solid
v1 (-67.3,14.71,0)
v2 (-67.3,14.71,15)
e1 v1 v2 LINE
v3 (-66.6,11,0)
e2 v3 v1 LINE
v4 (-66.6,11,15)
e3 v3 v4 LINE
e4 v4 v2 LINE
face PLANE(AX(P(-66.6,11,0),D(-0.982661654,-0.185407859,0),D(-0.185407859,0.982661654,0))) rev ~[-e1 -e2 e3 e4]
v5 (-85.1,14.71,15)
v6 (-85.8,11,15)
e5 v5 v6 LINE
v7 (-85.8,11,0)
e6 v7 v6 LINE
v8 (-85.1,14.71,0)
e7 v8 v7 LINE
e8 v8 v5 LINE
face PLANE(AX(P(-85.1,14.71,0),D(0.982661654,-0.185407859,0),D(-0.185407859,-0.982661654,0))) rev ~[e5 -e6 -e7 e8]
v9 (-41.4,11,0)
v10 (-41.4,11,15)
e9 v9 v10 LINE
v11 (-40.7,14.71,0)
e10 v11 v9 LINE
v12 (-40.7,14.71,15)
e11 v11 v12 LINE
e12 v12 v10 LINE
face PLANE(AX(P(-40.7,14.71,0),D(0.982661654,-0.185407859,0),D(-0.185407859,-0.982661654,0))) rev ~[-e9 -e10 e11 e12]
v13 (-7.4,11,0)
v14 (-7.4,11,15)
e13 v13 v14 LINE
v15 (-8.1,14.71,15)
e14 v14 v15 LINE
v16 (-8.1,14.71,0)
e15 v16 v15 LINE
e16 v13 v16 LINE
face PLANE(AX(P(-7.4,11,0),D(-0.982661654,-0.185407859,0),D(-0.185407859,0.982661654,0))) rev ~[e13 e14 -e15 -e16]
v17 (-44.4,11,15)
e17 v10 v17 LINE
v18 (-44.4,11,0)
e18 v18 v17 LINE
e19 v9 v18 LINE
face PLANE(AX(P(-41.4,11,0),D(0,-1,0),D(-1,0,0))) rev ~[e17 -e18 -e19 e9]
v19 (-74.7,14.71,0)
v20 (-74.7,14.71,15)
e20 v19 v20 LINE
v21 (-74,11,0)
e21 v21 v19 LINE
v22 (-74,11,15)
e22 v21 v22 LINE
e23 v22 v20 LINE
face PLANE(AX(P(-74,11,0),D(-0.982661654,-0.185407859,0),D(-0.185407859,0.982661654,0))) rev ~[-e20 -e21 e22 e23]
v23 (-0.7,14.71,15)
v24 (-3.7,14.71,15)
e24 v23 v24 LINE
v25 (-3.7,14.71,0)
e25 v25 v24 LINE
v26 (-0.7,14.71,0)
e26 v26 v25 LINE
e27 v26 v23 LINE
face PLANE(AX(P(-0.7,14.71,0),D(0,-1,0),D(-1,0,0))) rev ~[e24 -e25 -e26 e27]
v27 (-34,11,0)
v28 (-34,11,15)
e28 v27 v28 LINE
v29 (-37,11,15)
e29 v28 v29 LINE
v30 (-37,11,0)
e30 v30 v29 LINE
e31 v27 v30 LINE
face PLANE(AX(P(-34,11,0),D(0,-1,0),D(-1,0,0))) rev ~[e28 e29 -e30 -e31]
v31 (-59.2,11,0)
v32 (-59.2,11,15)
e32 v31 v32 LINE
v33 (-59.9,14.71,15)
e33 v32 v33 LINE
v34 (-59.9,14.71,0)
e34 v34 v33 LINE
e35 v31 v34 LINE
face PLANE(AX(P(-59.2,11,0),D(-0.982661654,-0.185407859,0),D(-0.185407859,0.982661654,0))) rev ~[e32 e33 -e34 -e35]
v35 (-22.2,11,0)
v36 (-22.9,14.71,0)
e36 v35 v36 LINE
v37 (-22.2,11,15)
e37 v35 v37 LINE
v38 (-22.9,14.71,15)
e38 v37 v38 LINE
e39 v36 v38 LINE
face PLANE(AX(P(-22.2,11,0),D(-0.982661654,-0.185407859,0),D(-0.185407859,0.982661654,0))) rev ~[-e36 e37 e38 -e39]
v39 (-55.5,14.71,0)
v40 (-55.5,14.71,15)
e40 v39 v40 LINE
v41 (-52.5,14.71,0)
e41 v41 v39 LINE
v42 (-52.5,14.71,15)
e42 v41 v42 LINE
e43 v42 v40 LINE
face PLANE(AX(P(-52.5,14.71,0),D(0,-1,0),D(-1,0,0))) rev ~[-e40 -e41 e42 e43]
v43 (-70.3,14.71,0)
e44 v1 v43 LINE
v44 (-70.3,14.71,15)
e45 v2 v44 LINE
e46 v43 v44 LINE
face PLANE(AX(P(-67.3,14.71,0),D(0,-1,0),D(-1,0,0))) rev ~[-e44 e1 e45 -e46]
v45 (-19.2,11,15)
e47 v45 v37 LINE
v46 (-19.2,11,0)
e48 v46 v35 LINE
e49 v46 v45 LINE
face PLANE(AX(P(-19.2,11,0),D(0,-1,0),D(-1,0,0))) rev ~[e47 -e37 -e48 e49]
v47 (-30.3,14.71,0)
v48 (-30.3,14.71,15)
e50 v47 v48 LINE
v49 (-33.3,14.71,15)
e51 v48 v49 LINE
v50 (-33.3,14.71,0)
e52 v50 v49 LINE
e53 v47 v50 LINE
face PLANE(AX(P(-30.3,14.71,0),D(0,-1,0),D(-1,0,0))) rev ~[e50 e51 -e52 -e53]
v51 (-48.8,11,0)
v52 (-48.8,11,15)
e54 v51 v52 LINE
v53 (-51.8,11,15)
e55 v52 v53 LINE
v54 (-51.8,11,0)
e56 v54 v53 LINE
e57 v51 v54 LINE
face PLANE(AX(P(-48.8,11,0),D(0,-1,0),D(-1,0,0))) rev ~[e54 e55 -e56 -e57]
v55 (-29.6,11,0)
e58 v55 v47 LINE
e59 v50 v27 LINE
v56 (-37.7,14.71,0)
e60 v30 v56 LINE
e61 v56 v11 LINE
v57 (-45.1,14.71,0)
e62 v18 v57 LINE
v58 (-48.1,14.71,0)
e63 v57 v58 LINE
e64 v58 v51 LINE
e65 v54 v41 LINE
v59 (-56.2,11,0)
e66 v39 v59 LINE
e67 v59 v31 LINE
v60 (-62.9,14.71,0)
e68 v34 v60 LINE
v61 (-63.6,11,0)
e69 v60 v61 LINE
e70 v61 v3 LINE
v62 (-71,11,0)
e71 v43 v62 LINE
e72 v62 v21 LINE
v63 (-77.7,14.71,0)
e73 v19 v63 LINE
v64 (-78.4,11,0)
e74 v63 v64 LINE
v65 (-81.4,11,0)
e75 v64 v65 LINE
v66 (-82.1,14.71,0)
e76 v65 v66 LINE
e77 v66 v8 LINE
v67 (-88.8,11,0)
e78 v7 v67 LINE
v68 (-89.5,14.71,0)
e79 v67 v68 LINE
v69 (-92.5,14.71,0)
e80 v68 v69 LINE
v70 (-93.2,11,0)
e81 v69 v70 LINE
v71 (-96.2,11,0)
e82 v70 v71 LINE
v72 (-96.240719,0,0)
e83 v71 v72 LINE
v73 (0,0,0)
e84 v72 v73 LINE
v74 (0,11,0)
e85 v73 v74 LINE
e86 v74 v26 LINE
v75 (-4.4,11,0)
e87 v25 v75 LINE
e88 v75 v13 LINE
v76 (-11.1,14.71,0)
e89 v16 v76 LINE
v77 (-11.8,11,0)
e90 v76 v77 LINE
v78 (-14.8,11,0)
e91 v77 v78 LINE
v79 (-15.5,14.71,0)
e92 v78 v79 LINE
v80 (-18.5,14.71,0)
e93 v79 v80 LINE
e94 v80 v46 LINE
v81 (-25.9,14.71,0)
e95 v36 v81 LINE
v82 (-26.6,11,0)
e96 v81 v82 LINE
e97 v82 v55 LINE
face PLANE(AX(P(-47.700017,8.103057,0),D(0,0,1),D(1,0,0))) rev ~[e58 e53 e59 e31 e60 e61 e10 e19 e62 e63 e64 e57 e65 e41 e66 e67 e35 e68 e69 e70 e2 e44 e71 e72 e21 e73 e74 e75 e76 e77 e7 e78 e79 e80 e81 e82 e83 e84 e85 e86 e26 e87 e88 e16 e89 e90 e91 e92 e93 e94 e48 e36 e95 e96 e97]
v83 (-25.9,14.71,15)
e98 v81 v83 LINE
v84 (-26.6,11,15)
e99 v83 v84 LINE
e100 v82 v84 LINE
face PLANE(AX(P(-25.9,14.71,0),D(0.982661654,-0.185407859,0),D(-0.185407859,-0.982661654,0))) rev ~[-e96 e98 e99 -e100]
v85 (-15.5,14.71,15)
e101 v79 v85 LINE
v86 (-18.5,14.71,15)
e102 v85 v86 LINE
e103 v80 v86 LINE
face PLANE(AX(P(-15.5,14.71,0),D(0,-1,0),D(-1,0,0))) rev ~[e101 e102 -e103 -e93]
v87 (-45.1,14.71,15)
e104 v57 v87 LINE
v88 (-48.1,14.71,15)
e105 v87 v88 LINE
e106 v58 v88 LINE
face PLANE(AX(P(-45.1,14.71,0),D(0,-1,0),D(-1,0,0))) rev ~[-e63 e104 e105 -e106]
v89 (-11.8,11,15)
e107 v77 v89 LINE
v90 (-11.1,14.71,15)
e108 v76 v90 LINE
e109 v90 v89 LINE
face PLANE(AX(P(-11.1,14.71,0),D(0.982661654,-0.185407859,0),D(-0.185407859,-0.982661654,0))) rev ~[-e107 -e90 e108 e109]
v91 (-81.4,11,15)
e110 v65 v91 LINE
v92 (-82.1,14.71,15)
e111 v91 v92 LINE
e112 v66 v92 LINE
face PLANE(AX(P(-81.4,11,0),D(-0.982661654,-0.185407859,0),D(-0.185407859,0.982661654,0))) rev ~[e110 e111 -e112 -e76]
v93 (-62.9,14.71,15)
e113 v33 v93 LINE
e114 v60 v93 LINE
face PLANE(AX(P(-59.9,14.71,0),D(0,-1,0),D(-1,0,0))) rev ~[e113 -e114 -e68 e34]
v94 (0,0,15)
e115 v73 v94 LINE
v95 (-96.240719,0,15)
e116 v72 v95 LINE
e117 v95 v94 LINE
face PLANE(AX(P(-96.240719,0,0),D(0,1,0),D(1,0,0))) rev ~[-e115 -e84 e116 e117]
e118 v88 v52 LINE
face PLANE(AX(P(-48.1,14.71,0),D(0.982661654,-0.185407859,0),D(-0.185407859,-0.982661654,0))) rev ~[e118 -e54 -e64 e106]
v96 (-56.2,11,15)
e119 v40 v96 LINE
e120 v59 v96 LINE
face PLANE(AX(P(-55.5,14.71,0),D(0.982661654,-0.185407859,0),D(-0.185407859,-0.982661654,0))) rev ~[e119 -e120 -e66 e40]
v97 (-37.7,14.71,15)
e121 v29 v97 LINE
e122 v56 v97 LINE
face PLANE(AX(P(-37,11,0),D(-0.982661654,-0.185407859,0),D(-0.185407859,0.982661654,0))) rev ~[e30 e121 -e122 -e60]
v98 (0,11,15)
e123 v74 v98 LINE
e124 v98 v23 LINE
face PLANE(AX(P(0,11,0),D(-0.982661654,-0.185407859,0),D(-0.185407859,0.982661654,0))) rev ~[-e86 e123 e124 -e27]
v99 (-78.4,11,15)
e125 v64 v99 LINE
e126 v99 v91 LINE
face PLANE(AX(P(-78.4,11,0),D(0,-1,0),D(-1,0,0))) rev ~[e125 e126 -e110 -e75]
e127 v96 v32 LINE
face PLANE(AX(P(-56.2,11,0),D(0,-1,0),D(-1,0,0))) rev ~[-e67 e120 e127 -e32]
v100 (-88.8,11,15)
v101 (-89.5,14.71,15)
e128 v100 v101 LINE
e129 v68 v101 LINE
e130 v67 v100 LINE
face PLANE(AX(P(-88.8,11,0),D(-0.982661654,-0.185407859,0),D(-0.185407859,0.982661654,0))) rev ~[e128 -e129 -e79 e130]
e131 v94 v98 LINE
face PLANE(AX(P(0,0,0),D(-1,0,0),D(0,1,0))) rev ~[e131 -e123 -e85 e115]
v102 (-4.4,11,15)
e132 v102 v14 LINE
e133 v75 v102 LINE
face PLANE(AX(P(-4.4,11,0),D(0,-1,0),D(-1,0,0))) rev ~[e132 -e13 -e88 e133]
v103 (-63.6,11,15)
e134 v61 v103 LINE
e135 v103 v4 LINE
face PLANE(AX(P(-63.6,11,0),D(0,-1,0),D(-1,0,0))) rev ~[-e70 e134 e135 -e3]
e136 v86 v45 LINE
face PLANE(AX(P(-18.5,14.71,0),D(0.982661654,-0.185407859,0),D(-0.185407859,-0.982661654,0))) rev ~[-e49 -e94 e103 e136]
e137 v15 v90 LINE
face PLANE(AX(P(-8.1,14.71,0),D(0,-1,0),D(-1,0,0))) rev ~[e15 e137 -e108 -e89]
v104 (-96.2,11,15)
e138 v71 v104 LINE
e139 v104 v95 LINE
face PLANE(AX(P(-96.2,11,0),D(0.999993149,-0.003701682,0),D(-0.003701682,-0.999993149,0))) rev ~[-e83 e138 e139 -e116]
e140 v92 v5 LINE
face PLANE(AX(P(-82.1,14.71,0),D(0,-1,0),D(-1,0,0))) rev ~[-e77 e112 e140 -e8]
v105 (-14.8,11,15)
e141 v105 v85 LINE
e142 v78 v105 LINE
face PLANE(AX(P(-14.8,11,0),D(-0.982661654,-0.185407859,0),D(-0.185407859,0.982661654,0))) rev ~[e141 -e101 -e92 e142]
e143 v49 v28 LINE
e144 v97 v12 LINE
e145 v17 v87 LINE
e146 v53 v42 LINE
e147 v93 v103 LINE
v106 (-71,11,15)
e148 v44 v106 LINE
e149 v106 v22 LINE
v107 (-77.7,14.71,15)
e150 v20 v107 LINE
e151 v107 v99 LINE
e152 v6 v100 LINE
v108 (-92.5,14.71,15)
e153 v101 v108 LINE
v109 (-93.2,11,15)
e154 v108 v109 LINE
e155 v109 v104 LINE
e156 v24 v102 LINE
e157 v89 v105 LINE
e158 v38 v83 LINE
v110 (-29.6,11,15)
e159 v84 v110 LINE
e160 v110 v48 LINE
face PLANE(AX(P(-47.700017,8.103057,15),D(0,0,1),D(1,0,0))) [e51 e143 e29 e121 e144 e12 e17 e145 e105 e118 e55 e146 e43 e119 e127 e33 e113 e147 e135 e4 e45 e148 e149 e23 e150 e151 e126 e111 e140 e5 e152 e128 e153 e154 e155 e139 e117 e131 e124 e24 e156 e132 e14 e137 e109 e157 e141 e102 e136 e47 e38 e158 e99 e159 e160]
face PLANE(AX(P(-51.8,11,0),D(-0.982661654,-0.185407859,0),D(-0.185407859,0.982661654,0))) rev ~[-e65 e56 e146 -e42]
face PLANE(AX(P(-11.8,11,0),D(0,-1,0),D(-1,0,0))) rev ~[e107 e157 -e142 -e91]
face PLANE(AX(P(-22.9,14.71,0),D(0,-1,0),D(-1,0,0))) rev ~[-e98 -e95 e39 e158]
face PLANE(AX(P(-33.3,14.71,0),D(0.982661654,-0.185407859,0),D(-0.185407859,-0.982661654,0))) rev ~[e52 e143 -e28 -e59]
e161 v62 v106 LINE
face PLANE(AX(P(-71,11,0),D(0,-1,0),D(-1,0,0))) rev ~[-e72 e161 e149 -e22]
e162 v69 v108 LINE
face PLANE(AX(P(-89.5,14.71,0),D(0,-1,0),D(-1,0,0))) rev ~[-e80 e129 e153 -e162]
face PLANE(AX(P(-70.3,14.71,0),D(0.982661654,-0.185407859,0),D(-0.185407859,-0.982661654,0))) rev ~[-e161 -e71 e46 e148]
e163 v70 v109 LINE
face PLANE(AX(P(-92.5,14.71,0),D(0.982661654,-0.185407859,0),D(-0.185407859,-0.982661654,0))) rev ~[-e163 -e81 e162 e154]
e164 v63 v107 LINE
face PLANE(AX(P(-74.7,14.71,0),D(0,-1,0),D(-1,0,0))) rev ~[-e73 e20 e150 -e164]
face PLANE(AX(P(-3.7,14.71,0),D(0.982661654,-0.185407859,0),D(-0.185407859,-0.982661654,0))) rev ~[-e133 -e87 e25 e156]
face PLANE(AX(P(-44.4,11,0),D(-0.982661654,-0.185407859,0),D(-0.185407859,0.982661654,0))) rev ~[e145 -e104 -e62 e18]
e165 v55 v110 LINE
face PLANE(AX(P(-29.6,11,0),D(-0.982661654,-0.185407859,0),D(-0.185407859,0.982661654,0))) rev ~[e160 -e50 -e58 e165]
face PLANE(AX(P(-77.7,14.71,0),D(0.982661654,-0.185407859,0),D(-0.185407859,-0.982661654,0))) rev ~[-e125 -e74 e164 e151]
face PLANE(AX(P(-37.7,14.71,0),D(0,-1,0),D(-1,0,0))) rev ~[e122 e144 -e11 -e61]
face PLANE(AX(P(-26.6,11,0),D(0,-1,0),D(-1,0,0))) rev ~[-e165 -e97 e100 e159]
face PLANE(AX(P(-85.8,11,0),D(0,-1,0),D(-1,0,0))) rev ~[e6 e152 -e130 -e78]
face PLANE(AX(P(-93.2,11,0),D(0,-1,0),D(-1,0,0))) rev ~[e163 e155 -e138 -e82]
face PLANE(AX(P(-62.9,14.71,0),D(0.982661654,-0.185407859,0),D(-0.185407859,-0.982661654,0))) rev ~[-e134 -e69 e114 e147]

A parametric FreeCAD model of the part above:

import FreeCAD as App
import Part
import Sketcher


def add_polygon(sketch, points):
    """Adds a closed chain of lines whose ends are joined by coincident constraints."""
    first, n = sketch.GeometryCount, len(points)
    for a, b in zip(points, points[1:] + points[:1]):
        sketch.addGeometry(Part.LineSegment(App.Vector(*a, 0), App.Vector(*b, 0)), False)
    for i in range(n):
        sketch.addConstraint(Sketcher.Constraint("Coincident", first + i, 2, first + (i + 1) % n, 1))

doc = App.newDocument("Part")
body = doc.addObject("PartDesign::Body", "Body")

sketch1 = body.newObject("Sketcher::SketchObject", "Sketch")
sketch1.AttachmentSupport = (doc.getObject("XY_Plane"), [""])
sketch1.MapMode = "FlatFace"
add_polygon(sketch1, [(0, 0), (0, 11), (-0.7, 14.7), (-3.7, 14.7), (-4.4, 11), (-7.4, 11), (-8.1, 14.7), (-11.1, 14.7), (-11.8, 11), (-14.8, 11), (-15.5, 14.7), (-18.5, 14.7), (-19.2, 11), (-22.2, 11), (-22.9, 14.7), (-25.9, 14.7), (-26.6, 11), (-29.6, 11), (-30.3, 14.7), (-33.3, 14.7), (-34, 11), (-37, 11), (-37.7, 14.7), (-40.7, 14.7), (-41.4, 11), (-44.4, 11), (-45.1, 14.7), (-48.1, 14.7), (-48.8, 11), (-51.8, 11), (-52.5, 14.7), (-55.5, 14.7), (-56.2, 11), (-59.2, 11), (-59.9, 14.7), (-62.9, 14.7), (-63.6, 11), (-66.6, 11), (-67.3, 14.7), (-70.3, 14.7), (-71, 11), (-74, 11), (-74.7, 14.7), (-77.7, 14.7), (-78.4, 11), (-81.4, 11), (-82.1, 14.7), (-85.1, 14.7), (-85.8, 11), (-88.8, 11), (-89.5, 14.7), (-92.5, 14.7), (-93.2, 11), (-96.2, 11), (-96.2, 0)])
sketch1.addConstraint(Sketcher.Constraint("Vertical", 0))
sketch1.addConstraint(Sketcher.Constraint("Horizontal", 2))
sketch1.addConstraint(Sketcher.Constraint("Horizontal", 4))
sketch1.addConstraint(Sketcher.Constraint("Horizontal", 6))
sketch1.addConstraint(Sketcher.Constraint("Horizontal", 8))
sketch1.addConstraint(Sketcher.Constraint("Horizontal", 10))
sketch1.addConstraint(Sketcher.Constraint("Horizontal", 12))
sketch1.addConstraint(Sketcher.Constraint("Horizontal", 14))
sketch1.addConstraint(Sketcher.Constraint("Horizontal", 16))
sketch1.addConstraint(Sketcher.Constraint("Horizontal", 18))
sketch1.addConstraint(Sketcher.Constraint("Horizontal", 20))
sketch1.addConstraint(Sketcher.Constraint("Horizontal", 22))
sketch1.addConstraint(Sketcher.Constraint("Horizontal", 24))
sketch1.addConstraint(Sketcher.Constraint("Horizontal", 26))
sketch1.addConstraint(Sketcher.Constraint("Horizontal", 28))
sketch1.addConstraint(Sketcher.Constraint("Horizontal", 30))
sketch1.addConstraint(Sketcher.Constraint("Horizontal", 32))
sketch1.addConstraint(Sketcher.Constraint("Horizontal", 34))
sketch1.addConstraint(Sketcher.Constraint("Horizontal", 36))
sketch1.addConstraint(Sketcher.Constraint("Horizontal", 38))
sketch1.addConstraint(Sketcher.Constraint("Horizontal", 40))
sketch1.addConstraint(Sketcher.Constraint("Horizontal", 42))
sketch1.addConstraint(Sketcher.Constraint("Horizontal", 44))
sketch1.addConstraint(Sketcher.Constraint("Horizontal", 46))
sketch1.addConstraint(Sketcher.Constraint("Horizontal", 48))
sketch1.addConstraint(Sketcher.Constraint("Horizontal", 50))
sketch1.addConstraint(Sketcher.Constraint("Horizontal", 52))
sketch1.addConstraint(Sketcher.Constraint("Horizontal", 54))
sketch1.addConstraint(Sketcher.Constraint("Coincident", 54, 2, -1, 1))
sketch1.addConstraint(Sketcher.Constraint("Parallel", 1, 5))
sketch1.addConstraint(Sketcher.Constraint("Parallel", 3, 7))
sketch1.addConstraint(Sketcher.Constraint("Parallel", 5, 9))
sketch1.addConstraint(Sketcher.Constraint("Parallel", 7, 11))
sketch1.addConstraint(Sketcher.Constraint("Parallel", 9, 13))
sketch1.addConstraint(Sketcher.Constraint("Parallel", 11, 15))
sketch1.addConstraint(Sketcher.Constraint("Parallel", 13, 17))
sketch1.addConstraint(Sketcher.Constraint("Parallel", 15, 19))
sketch1.addConstraint(Sketcher.Constraint("Parallel", 17, 21))
sketch1.addConstraint(Sketcher.Constraint("Parallel", 19, 23))
sketch1.addConstraint(Sketcher.Constraint("Parallel", 21, 25))
sketch1.addConstraint(Sketcher.Constraint("Parallel", 23, 27))
sketch1.addConstraint(Sketcher.Constraint("Parallel", 25, 29))
sketch1.addConstraint(Sketcher.Constraint("Parallel", 27, 31))
sketch1.addConstraint(Sketcher.Constraint("Parallel", 29, 33))
sketch1.addConstraint(Sketcher.Constraint("Parallel", 31, 35))
sketch1.addConstraint(Sketcher.Constraint("Parallel", 33, 37))
sketch1.addConstraint(Sketcher.Constraint("Parallel", 35, 39))
sketch1.addConstraint(Sketcher.Constraint("Parallel", 37, 41))
sketch1.addConstraint(Sketcher.Constraint("Parallel", 39, 43))
sketch1.addConstraint(Sketcher.Constraint("Parallel", 41, 45))
sketch1.addConstraint(Sketcher.Constraint("Parallel", 43, 47))
sketch1.addConstraint(Sketcher.Constraint("Parallel", 45, 49))
sketch1.addConstraint(Sketcher.Constraint("Parallel", 47, 51))
sketch1.addConstraint(Sketcher.Constraint("Horizontal", 0, 2, 3, 2))
sketch1.addConstraint(Sketcher.Constraint("Horizontal", 2, 2, 5, 2))
sketch1.addConstraint(Sketcher.Constraint("Horizontal", 4, 2, 7, 2))
sketch1.addConstraint(Sketcher.Constraint("Horizontal", 6, 2, 9, 2))
sketch1.addConstraint(Sketcher.Constraint("Horizontal", 8, 2, 11, 2))
sketch1.addConstraint(Sketcher.Constraint("Horizontal", 10, 2, 13, 2))
sketch1.addConstraint(Sketcher.Constraint("Horizontal", 12, 2, 15, 2))
sketch1.addConstraint(Sketcher.Constraint("Horizontal", 14, 2, 17, 2))
sketch1.addConstraint(Sketcher.Constraint("Horizontal", 16, 2, 19, 2))
sketch1.addConstraint(Sketcher.Constraint("Horizontal", 18, 2, 21, 2))
sketch1.addConstraint(Sketcher.Constraint("Horizontal", 20, 2, 23, 2))
sketch1.addConstraint(Sketcher.Constraint("Horizontal", 22, 2, 25, 2))
sketch1.addConstraint(Sketcher.Constraint("Horizontal", 24, 2, 27, 2))
sketch1.addConstraint(Sketcher.Constraint("Horizontal", 26, 2, 29, 2))
sketch1.addConstraint(Sketcher.Constraint("Horizontal", 28, 2, 31, 2))
sketch1.addConstraint(Sketcher.Constraint("Horizontal", 30, 2, 33, 2))
sketch1.addConstraint(Sketcher.Constraint("Horizontal", 32, 2, 35, 2))
sketch1.addConstraint(Sketcher.Constraint("Horizontal", 34, 2, 37, 2))
sketch1.addConstraint(Sketcher.Constraint("Horizontal", 36, 2, 39, 2))
sketch1.addConstraint(Sketcher.Constraint("Horizontal", 38, 2, 41, 2))
sketch1.addConstraint(Sketcher.Constraint("Horizontal", 40, 2, 43, 2))
sketch1.addConstraint(Sketcher.Constraint("Horizontal", 42, 2, 45, 2))
sketch1.addConstraint(Sketcher.Constraint("Horizontal", 44, 2, 47, 2))
sketch1.addConstraint(Sketcher.Constraint("Horizontal", 46, 2, 49, 2))
sketch1.addConstraint(Sketcher.Constraint("Horizontal", 48, 2, 51, 2))
sketch1.addConstraint(Sketcher.Constraint("Equal", 2, 4))
sketch1.addConstraint(Sketcher.Constraint("Equal", 4, 6))
sketch1.addConstraint(Sketcher.Constraint("Equal", 6, 8))
sketch1.addConstraint(Sketcher.Constraint("Equal", 8, 10))
sketch1.addConstraint(Sketcher.Constraint("Equal", 10, 12))
sketch1.addConstraint(Sketcher.Constraint("Equal", 12, 14))
sketch1.addConstraint(Sketcher.Constraint("Equal", 14, 16))
sketch1.addConstraint(Sketcher.Constraint("Equal", 16, 18))
sketch1.addConstraint(Sketcher.Constraint("Equal", 18, 20))
sketch1.addConstraint(Sketcher.Constraint("Equal", 20, 22))
sketch1.addConstraint(Sketcher.Constraint("Equal", 22, 24))
sketch1.addConstraint(Sketcher.Constraint("Equal", 24, 26))
sketch1.addConstraint(Sketcher.Constraint("Equal", 26, 28))
sketch1.addConstraint(Sketcher.Constraint("Equal", 28, 30))
sketch1.addConstraint(Sketcher.Constraint("Equal", 30, 32))
sketch1.addConstraint(Sketcher.Constraint("Equal", 32, 34))
sketch1.addConstraint(Sketcher.Constraint("Equal", 34, 36))
sketch1.addConstraint(Sketcher.Constraint("Equal", 36, 38))
sketch1.addConstraint(Sketcher.Constraint("Equal", 38, 40))
sketch1.addConstraint(Sketcher.Constraint("Equal", 40, 42))
sketch1.addConstraint(Sketcher.Constraint("Equal", 42, 44))
sketch1.addConstraint(Sketcher.Constraint("Equal", 44, 46))
sketch1.addConstraint(Sketcher.Constraint("Equal", 46, 48))
sketch1.addConstraint(Sketcher.Constraint("Equal", 48, 50))
sketch1.addConstraint(Sketcher.Constraint("Equal", 50, 52))
sketch1.addConstraint(Sketcher.Constraint("Equal", 1, 3))
sketch1.addConstraint(Sketcher.Constraint("DistanceX", 2, 2, 2, 1, 3.0))
sketch1.addConstraint(Sketcher.Constraint("DistanceY", 0, 1, 0, 2, 11.0))
sketch1.addConstraint(Sketcher.Constraint("DistanceX", 19, 2, -1, 1, 34.0))
sketch1.addConstraint(Sketcher.Constraint("DistanceY", -1, 1, 1, 2, 14.71))
sketch1.addConstraint(Sketcher.Constraint("DistanceX", 54, 1, 54, 2, 96.240719))
pad1 = body.newObject("PartDesign::Pad", "Pad")
pad1.Profile = sketch1
pad1.Length = 15

doc.recompute()
